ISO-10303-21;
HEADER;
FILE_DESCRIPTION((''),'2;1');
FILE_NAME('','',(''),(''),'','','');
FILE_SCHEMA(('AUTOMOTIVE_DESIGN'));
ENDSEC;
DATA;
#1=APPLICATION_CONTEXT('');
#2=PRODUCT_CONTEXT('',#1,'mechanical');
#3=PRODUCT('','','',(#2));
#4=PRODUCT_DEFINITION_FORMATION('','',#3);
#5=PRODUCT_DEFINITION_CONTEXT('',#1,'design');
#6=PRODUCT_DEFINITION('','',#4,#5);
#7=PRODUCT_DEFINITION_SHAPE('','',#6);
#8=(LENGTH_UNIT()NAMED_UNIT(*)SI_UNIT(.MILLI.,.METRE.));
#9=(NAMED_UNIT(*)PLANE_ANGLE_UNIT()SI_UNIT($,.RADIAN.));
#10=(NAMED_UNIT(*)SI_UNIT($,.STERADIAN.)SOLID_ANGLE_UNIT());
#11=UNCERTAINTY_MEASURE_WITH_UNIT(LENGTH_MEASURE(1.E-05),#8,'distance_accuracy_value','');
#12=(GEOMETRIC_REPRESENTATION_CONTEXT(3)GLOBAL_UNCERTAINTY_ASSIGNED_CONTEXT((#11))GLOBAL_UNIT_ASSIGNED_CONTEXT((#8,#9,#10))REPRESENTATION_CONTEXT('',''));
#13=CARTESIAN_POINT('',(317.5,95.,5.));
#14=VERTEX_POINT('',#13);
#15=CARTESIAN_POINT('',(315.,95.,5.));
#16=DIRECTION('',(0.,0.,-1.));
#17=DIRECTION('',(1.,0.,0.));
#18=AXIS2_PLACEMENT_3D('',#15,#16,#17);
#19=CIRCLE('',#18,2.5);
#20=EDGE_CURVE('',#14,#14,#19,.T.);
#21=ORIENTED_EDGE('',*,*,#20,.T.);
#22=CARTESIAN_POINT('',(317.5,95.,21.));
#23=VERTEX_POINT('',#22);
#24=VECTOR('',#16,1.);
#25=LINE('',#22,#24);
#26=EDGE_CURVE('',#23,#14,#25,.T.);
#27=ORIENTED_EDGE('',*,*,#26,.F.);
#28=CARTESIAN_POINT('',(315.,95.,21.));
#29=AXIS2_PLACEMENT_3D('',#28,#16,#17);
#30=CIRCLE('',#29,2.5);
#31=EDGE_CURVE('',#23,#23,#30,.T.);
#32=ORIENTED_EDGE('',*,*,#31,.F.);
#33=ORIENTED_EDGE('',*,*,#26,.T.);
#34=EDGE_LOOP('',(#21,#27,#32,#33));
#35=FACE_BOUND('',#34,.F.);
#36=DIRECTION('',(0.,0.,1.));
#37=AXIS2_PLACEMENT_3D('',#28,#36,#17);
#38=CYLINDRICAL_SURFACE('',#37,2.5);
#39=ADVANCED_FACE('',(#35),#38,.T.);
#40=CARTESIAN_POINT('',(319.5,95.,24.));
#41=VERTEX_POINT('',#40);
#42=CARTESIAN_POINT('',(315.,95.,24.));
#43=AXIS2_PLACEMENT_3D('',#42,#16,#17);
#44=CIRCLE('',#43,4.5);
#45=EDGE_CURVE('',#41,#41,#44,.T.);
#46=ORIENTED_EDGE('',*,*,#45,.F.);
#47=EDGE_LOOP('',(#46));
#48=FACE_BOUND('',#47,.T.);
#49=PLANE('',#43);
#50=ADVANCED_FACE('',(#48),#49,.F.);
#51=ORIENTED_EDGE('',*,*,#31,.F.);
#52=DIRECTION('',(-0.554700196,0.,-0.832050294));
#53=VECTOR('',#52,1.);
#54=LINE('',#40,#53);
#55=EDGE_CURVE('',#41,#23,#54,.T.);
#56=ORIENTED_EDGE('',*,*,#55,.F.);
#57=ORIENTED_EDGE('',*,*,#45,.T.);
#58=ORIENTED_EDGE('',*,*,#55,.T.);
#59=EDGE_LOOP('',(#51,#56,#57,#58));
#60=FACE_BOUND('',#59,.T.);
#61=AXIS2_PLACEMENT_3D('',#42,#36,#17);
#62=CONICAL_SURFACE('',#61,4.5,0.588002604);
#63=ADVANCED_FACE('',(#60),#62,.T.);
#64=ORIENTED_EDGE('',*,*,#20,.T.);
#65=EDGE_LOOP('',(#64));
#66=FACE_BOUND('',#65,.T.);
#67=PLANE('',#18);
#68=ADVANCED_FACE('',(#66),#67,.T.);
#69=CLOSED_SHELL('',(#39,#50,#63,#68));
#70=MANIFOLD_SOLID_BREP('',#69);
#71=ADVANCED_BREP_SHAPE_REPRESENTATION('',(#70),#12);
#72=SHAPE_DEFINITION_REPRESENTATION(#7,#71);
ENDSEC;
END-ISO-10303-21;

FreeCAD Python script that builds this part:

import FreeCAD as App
import Part
import Sketcher

V = App.Vector
Q = App.Units.Quantity

doc = App.newDocument("Part")
body = doc.addObject("PartDesign::Body", "Body")

# Sketch on XZ plane
sketch1 = body.newObject("Sketcher::SketchObject", "Sketch")
sketch1.AttachmentSupport = (doc.getObject("XZ_Plane"), [""])
sketch1.MapMode = "FlatFace"
sketch1.addGeometry([
    Part.LineSegment(V(0, -3, 0), V(4.5, -3, 0)),
    Part.LineSegment(V(4.5, -3, 0), V(2.5, 0, 0)),
    Part.LineSegment(V(2.5, 0, 0), V(0, 0, 0)),
    Part.LineSegment(V(0, 0, 0), V(0, -3, 0)),
], False)
sketch1.addConstraint([
    Sketcher.Constraint("Coincident", 0, 2, 1, 1),
    Sketcher.Constraint("Coincident", 1, 2, 2, 1),
    Sketcher.Constraint("Coincident", 2, 2, 3, 1),
    Sketcher.Constraint("Coincident", 3, 2, 0, 1),
    Sketcher.Constraint("Horizontal", 0),
    Sketcher.Constraint("Horizontal", 2),
    Sketcher.Constraint("Vertical", 3),
    Sketcher.Constraint("Coincident", 2, 2, -1, 1),
    Sketcher.Constraint("DistanceY", 3, 2, 3, 1, Q("3 mm")),
    Sketcher.Constraint("DistanceX", 0, 1, 0, 2, Q("4.5 mm")),
    Sketcher.Constraint("DistanceX", 2, 2, 2, 1, Q("2.5 mm")),
])
revolution = body.newObject("PartDesign::Revolution", "Revolution")
revolution.Profile = sketch1
revolution.ReferenceAxis = (sketch1, ["V_Axis"])
revolution.Angle = 360
body2 = doc.addObject("PartDesign::Body", "Body001")

# Sketch on XY plane
sketch2 = body2.newObject("Sketcher::SketchObject", "Sketch001")
sketch2.AttachmentSupport = (doc.getObject("XY_Plane001"), [""])
sketch2.MapMode = "FlatFace"
sketch2.addGeometry(Part.Circle(V(0, 0, 0), V(0, 0, 1), 2.5), False)
sketch2.addConstraint([
    Sketcher.Constraint("Coincident", 0, 3, -1, 1),
    Sketcher.Constraint("Diameter", 0, Q("5 mm")),
])
pad1 = body2.newObject("PartDesign::Pad", "Pad")
pad1.Profile = sketch2
pad1.Length = 16
doc.recompute()

boolean = body2.newObject("PartDesign::Boolean", "Boolean")
boolean.Type = "Fuse"
boolean.addObjects([body])
body3 = doc.addObject("PartDesign::Body", "Body002")
doc.recompute()

body2.Placement = App.Placement(V(45, 15, 21), App.Rotation(V(0, 1, 0), 180))
boolean2 = body3.newObject("PartDesign::Boolean", "Boolean001")
boolean2.Type = "Fuse"
boolean2.addObjects([body2])
body4 = doc.addObject("PartDesign::Body", "Body003")
doc.recompute()

body3.Placement = App.Placement(V(90, 110, 0), App.Rotation(V(0, 0, 1), 180))
boolean3 = body4.newObject("PartDesign::Boolean", "Boolean002")
boolean3.Type = "Fuse"
boolean3.addObjects([body3])
body5 = doc.addObject("PartDesign::Body", "Body004")
doc.recompute()

body4.Placement = App.Placement(V(270, 0, 0), App.Rotation(V(0, 0, 1), 0))
boolean4 = body5.newObject("PartDesign::Boolean", "Boolean003")
boolean4.Type = "Fuse"
boolean4.addObjects([body4])

doc.recompute()
